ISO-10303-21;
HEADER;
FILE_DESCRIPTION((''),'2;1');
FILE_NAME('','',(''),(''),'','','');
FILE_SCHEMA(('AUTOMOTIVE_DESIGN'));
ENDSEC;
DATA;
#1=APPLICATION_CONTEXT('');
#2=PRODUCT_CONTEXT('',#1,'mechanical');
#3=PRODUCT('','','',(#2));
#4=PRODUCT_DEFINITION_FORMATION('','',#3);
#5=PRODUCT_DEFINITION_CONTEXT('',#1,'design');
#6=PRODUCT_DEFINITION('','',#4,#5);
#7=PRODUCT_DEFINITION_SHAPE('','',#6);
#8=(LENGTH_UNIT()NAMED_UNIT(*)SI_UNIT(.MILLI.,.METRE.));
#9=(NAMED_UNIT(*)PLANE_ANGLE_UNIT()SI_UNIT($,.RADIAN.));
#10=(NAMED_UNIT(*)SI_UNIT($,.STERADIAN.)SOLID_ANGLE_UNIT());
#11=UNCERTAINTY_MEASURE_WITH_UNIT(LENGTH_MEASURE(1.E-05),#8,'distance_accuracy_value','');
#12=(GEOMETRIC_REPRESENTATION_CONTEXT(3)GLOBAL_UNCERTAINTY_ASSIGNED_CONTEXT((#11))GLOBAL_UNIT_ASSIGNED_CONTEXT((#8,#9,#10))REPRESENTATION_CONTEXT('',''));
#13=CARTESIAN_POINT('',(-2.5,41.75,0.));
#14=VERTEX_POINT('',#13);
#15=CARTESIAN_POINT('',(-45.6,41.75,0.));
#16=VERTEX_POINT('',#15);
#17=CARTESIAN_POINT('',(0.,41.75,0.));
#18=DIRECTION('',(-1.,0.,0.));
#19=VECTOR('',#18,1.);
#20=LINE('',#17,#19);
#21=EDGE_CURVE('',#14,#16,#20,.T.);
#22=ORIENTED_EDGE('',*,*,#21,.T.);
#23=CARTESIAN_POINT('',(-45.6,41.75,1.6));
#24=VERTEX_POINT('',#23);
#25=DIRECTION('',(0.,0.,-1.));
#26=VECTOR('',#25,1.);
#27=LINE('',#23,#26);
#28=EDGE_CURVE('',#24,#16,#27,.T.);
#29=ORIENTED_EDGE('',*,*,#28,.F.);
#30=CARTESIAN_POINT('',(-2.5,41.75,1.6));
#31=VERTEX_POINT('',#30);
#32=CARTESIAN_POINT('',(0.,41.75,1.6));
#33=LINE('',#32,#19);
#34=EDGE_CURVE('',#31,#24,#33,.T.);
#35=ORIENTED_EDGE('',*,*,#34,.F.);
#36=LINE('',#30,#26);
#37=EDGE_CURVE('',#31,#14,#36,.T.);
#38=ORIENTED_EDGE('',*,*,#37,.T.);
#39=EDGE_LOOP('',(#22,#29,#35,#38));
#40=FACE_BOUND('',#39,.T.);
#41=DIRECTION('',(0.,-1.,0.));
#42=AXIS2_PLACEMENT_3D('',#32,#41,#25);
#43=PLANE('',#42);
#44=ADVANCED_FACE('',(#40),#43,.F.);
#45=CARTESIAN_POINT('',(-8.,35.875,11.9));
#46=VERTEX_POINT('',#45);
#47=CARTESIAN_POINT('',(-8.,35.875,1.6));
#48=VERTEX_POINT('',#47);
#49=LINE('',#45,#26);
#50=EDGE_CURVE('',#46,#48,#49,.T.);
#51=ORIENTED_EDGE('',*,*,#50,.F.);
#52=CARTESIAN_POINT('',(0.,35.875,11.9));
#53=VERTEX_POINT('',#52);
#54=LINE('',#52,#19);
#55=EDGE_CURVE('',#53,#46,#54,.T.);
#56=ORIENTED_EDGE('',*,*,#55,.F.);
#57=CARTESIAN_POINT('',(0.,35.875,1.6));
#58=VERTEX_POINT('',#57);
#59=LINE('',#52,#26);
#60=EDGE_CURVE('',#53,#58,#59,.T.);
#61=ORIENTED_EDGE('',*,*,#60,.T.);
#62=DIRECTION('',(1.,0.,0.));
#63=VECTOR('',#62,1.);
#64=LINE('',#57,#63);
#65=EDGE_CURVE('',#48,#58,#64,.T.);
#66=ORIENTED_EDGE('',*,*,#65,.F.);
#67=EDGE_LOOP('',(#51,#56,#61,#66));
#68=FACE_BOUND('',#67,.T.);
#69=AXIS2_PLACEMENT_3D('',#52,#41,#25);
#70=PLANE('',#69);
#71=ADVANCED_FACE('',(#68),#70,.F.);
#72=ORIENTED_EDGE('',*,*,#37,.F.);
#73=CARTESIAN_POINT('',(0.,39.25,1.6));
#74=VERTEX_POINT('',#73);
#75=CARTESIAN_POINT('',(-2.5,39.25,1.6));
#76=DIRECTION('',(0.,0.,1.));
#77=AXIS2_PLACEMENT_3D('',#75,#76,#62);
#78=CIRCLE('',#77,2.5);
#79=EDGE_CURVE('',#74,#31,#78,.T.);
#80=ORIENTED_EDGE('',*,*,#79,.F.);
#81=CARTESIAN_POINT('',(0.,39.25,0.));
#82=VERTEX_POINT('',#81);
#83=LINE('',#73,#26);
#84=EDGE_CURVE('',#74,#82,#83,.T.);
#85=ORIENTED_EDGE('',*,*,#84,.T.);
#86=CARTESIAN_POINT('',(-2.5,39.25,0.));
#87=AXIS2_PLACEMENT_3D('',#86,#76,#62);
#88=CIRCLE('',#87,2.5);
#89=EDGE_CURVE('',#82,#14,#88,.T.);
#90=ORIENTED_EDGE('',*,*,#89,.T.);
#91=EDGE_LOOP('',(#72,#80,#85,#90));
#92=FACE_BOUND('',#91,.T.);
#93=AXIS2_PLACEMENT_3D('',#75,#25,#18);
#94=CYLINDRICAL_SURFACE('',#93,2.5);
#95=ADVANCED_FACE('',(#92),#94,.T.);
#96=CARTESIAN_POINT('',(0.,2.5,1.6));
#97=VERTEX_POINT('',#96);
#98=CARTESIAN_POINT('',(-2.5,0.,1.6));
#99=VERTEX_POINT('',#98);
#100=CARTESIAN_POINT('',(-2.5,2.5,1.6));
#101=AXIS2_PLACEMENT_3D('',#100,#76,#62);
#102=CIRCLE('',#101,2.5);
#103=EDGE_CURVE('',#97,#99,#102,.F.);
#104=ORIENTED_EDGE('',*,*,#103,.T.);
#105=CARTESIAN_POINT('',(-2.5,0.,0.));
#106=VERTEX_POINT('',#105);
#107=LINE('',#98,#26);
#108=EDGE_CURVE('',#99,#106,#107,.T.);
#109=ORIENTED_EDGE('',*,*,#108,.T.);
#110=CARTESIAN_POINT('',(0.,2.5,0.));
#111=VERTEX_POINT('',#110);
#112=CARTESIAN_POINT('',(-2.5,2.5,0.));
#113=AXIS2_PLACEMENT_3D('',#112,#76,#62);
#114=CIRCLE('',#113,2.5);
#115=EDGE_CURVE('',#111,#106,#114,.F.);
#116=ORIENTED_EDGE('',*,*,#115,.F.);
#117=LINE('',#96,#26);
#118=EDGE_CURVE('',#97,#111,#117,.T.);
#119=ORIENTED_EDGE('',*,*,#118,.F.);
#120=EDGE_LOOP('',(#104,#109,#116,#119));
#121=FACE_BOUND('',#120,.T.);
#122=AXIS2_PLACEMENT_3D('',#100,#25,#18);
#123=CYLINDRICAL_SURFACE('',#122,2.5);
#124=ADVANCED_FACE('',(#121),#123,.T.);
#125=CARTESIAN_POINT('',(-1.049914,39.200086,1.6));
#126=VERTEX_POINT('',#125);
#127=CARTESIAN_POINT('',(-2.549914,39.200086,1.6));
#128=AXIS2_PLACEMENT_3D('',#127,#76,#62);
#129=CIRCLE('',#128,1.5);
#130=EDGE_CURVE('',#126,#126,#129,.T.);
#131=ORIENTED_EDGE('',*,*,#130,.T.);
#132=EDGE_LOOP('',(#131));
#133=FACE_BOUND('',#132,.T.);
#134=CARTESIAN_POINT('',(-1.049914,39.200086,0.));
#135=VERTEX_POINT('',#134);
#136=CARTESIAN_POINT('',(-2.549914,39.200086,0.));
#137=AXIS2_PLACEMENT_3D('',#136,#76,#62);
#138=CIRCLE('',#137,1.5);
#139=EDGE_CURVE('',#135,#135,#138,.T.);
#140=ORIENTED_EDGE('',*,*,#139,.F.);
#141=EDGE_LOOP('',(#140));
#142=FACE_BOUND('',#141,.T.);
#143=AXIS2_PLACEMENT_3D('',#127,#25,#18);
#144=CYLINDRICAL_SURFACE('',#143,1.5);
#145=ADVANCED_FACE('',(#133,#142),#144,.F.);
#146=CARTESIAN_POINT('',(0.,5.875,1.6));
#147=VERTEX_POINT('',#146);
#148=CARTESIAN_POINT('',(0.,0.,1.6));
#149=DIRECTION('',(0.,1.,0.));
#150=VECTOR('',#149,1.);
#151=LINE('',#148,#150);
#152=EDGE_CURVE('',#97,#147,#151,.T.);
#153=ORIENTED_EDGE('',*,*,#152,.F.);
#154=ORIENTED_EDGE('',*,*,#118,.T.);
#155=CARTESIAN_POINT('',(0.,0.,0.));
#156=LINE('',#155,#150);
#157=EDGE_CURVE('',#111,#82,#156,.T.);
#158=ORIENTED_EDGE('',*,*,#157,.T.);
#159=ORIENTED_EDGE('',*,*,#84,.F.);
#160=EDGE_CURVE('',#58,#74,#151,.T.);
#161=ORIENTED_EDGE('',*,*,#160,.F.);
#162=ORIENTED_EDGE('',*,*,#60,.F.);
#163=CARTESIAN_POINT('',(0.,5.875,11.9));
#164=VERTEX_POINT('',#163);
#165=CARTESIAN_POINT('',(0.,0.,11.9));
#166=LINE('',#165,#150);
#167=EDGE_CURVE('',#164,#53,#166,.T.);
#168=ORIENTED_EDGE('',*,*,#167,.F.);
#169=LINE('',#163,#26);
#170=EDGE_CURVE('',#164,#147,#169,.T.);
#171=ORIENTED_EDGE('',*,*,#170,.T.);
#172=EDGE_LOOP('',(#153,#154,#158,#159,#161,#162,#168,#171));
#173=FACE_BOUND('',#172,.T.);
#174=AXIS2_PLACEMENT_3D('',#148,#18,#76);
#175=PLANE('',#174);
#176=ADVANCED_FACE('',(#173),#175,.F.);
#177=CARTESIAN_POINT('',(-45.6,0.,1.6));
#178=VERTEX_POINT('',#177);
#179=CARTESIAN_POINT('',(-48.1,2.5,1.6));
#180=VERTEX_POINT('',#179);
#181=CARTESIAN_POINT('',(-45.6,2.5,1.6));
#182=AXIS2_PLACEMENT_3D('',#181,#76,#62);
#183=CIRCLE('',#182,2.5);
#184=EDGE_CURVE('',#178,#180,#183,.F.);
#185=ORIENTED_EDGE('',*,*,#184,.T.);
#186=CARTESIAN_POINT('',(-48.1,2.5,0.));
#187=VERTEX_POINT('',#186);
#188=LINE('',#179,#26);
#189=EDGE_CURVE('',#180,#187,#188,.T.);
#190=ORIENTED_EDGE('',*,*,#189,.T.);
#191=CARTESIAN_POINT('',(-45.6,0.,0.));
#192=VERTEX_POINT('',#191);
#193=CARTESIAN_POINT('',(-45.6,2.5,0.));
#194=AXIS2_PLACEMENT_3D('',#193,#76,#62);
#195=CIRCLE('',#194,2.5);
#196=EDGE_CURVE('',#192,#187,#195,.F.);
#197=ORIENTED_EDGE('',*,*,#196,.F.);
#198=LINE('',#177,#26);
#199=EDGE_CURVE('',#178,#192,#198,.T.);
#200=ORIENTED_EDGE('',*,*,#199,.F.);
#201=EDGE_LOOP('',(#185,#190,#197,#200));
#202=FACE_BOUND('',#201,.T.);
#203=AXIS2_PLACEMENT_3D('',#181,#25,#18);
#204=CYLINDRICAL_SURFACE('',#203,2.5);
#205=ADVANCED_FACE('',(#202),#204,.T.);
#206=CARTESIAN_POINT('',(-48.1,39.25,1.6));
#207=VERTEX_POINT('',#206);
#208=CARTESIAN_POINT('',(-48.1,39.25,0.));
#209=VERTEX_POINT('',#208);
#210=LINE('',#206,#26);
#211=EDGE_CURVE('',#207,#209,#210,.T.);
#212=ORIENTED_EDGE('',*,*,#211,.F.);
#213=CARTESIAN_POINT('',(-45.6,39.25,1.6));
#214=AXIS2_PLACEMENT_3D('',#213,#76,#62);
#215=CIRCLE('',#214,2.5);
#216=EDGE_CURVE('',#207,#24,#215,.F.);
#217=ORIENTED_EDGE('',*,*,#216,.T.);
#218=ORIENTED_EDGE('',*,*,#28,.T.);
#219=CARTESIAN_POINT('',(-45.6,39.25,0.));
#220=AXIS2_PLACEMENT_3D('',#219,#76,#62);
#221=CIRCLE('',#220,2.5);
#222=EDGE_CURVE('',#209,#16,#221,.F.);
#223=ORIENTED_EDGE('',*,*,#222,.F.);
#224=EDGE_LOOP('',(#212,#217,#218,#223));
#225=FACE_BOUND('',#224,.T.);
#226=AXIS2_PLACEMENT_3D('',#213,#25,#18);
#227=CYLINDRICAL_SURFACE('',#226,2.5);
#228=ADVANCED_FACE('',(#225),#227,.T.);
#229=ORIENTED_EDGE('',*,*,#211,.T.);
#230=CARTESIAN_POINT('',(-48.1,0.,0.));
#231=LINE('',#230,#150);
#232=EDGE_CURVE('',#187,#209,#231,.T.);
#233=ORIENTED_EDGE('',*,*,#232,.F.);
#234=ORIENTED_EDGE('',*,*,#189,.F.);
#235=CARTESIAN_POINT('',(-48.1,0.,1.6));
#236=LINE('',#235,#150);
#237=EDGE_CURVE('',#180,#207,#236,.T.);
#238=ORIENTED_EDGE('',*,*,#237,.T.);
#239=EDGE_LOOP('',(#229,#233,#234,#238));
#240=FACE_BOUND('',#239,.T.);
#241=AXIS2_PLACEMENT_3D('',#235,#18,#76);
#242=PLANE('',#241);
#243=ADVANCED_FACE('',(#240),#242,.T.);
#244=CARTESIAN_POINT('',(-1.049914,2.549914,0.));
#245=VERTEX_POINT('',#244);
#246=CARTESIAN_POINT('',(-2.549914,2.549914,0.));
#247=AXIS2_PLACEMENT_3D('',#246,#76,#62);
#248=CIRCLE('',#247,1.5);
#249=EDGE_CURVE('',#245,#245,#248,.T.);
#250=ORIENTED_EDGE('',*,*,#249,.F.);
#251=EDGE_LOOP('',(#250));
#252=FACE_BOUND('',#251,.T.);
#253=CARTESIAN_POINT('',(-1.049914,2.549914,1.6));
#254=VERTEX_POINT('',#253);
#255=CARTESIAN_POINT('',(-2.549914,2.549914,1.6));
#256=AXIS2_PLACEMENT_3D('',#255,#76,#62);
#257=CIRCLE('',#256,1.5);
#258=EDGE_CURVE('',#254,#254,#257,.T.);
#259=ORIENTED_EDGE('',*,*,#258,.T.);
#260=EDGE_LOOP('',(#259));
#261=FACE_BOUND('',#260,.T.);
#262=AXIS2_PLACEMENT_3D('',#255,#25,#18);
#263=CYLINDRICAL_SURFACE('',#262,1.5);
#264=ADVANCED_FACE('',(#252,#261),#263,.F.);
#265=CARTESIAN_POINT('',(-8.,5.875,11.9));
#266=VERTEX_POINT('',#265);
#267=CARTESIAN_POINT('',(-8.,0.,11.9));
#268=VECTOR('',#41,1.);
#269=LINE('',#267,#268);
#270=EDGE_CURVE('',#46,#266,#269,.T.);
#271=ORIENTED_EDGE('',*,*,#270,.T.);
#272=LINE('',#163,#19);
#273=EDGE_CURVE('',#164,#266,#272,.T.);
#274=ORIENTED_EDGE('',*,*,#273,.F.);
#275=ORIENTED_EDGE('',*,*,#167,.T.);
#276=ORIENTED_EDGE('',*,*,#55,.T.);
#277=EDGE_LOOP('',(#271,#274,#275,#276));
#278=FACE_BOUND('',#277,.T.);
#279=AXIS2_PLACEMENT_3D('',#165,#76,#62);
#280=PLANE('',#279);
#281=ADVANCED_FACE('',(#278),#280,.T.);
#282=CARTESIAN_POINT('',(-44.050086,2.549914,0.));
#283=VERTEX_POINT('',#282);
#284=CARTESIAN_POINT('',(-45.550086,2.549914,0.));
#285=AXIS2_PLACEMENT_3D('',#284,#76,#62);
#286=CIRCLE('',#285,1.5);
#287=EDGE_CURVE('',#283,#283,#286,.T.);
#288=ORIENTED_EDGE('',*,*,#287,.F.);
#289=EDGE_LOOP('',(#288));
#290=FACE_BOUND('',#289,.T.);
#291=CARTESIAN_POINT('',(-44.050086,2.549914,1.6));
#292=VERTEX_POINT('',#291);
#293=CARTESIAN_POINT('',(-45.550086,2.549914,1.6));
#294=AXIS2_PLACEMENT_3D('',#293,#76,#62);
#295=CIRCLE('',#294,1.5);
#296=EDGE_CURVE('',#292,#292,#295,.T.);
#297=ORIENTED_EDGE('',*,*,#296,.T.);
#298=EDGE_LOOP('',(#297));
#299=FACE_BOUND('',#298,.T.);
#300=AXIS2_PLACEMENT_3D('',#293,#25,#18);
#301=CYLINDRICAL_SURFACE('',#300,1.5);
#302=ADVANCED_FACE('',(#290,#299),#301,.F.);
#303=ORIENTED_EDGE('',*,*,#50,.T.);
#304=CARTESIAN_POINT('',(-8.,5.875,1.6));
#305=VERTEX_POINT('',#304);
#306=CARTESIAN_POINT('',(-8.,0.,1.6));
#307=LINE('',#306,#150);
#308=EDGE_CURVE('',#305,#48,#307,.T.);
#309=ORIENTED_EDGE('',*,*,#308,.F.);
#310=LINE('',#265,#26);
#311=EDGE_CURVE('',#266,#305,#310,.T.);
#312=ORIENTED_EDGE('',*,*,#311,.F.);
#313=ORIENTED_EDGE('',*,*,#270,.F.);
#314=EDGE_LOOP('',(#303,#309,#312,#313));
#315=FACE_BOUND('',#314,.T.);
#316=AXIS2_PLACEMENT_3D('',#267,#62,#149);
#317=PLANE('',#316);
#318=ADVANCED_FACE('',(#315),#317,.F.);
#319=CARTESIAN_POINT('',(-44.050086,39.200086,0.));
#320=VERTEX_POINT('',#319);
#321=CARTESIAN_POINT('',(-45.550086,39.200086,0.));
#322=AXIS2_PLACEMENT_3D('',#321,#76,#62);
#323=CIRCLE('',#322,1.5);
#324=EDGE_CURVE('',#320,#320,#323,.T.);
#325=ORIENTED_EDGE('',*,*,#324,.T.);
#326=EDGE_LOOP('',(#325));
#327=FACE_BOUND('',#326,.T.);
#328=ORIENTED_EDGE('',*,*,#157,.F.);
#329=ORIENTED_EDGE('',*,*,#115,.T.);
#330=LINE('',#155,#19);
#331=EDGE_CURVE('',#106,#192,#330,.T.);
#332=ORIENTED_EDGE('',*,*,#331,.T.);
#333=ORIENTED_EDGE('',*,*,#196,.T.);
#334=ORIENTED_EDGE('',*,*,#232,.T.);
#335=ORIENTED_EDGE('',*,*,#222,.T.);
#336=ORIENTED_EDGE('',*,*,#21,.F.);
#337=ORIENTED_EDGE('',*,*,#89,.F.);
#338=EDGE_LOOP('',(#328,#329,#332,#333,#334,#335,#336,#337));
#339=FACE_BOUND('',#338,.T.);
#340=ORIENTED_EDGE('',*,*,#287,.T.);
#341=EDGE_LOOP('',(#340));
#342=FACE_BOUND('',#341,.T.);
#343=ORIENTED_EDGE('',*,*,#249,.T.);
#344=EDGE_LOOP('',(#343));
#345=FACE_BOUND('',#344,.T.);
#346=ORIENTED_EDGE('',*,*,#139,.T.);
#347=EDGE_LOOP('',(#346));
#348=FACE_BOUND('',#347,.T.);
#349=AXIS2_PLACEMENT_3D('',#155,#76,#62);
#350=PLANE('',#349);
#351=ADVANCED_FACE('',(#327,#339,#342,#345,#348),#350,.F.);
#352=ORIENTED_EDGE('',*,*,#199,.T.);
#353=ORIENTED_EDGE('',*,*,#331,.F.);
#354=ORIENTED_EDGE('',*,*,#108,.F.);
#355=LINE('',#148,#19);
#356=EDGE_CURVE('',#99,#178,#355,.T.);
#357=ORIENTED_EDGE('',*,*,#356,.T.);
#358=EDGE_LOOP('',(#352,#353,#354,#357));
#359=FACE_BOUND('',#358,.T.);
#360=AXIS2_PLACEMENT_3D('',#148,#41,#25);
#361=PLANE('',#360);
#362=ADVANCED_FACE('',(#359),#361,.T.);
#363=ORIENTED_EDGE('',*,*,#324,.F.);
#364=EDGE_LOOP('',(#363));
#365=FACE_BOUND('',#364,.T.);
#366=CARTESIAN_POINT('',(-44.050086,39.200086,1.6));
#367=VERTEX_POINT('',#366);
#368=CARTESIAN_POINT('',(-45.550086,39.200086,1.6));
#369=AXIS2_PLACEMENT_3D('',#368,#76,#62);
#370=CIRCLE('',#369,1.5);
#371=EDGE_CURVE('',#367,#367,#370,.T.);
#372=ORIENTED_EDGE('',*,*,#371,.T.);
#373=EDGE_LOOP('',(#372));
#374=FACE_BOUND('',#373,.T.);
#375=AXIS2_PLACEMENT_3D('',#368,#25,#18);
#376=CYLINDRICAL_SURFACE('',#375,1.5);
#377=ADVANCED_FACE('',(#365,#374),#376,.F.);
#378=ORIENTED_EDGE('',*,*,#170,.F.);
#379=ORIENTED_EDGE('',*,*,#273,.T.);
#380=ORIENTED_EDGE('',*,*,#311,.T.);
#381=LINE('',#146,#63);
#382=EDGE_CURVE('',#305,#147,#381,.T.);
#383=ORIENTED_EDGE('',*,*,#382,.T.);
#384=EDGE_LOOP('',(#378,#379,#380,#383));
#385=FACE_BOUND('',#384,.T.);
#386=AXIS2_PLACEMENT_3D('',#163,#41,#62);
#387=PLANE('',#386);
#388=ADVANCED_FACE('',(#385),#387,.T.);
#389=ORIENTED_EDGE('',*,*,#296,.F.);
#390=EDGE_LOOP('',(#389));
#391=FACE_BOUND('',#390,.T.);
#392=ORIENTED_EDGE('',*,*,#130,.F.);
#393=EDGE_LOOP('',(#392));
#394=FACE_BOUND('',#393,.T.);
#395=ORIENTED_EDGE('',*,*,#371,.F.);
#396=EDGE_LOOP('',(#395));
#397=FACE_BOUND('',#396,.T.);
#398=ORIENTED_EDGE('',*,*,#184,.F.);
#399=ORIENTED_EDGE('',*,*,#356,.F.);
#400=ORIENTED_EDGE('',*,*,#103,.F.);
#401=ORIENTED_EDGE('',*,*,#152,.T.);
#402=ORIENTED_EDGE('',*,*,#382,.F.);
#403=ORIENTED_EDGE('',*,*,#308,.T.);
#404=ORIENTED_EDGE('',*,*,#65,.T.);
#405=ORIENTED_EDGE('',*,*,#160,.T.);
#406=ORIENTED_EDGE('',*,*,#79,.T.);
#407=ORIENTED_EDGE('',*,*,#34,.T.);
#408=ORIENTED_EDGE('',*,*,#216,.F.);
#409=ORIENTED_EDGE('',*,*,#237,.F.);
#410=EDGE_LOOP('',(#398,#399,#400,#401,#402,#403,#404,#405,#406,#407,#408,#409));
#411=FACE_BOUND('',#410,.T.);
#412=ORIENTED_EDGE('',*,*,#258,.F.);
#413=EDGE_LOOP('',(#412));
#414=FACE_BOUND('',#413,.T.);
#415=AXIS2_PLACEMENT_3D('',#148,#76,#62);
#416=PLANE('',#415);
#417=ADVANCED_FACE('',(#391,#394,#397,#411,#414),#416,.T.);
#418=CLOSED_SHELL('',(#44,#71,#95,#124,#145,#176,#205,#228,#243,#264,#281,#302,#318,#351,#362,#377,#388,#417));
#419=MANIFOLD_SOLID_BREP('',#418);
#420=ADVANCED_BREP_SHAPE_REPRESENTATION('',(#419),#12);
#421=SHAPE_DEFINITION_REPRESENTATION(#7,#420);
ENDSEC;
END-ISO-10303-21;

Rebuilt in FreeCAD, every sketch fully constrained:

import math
import FreeCAD as App
import Part
import Sketcher
from FreeCAD import Vector

doc = App.newDocument("Part")
body = doc.addObject("PartDesign::Body", "Body")

# Sketch on XY plane
sketch1 = doc.addObject("Sketcher::SketchObject", "Sketch")
body.addObject(sketch1)
sketch1.AttachmentSupport = (doc.XY_Plane, [""])
sketch1.MapMode = "FlatFace"
sketch1.addGeometry([
    Part.ArcOfCircle(Part.Circle(Vector(-2.5, 2.5, 0), Vector(0, 0, 1), 2.5), math.radians(-90), math.radians(0)),  # 0
    Part.LineSegment(Vector(0, 2.5, 0), Vector(0, 39.2, 0)),  # 1
    Part.ArcOfCircle(Part.Circle(Vector(-2.5, 39.2, 0), Vector(0, 0, 1), 2.5), math.radians(0), math.radians(90)),  # 2
    Part.LineSegment(Vector(-2.5, 41.8, 0), Vector(-45.6, 41.8, 0)),  # 3
    Part.ArcOfCircle(Part.Circle(Vector(-45.6, 39.2, 0), Vector(0, 0, 1), 2.5), math.radians(90), math.radians(180)),  # 4
    Part.LineSegment(Vector(-48.1, 39.2, 0), Vector(-48.1, 2.5, 0)),  # 5
    Part.ArcOfCircle(Part.Circle(Vector(-45.6, 2.5, 0), Vector(0, 0, 1), 2.5), math.radians(180), math.radians(270)),  # 6
    Part.LineSegment(Vector(-45.6, 0, 0), Vector(-2.5, 0, 0)),  # 7
    Part.Circle(Vector(-2.5, 2.5, 0), Vector(0, 0, 1), 1.5),  # 8
    Part.Circle(Vector(-2.5, 39.2, 0), Vector(0, 0, 1), 1.5),  # 9
    Part.Circle(Vector(-45.6, 2.5, 0), Vector(0, 0, 1), 1.5),  # 10
    Part.Circle(Vector(-45.6, 39.2, 0), Vector(0, 0, 1), 1.5),  # 11
], False)
sketch1.addConstraint([
    Sketcher.Constraint("Tangent", 0, 2, 1, 1),
    Sketcher.Constraint("Tangent", 1, 2, 2, 1),
    Sketcher.Constraint("Tangent", 2, 2, 3, 1),
    Sketcher.Constraint("Tangent", 3, 2, 4, 1),
    Sketcher.Constraint("Tangent", 4, 2, 5, 1),
    Sketcher.Constraint("Tangent", 5, 2, 6, 1),
    Sketcher.Constraint("Tangent", 6, 2, 7, 1),
    Sketcher.Constraint("Tangent", 7, 2, 0, 1),
    Sketcher.Constraint("Vertical", 1),
    Sketcher.Constraint("Horizontal", 3),
    Sketcher.Constraint("Vertical", 5),
    Sketcher.Constraint("Horizontal", 7),
    Sketcher.Constraint("Equal", 0, 2),
    Sketcher.Constraint("Equal", 2, 4),
    Sketcher.Constraint("Equal", 4, 6),
    Sketcher.Constraint("Equal", 8, 9),
    Sketcher.Constraint("Equal", 9, 10),
    Sketcher.Constraint("Equal", 10, 11),
    Sketcher.Constraint("PointOnObject", 0, 2, -2),
    Sketcher.Constraint("PointOnObject", 6, 2, -1),
    Sketcher.Constraint("Horizontal", 8, 3, 10, 3),
    Sketcher.Constraint("Horizontal", 9, 3, 11, 3),
    Sketcher.Constraint("Vertical", 8, 3, 9, 3),
    Sketcher.Constraint("Vertical", 10, 3, 11, 3),
    Sketcher.Constraint("Diameter", 8, 3.0),
    Sketcher.Constraint("Radius", 0, 2.5),
    Sketcher.Constraint("DistanceX", 3, 2, 3, 1, 43.1),
    Sketcher.Constraint("DistanceY", 1, 1, 1, 2, 36.75),
    Sketcher.Constraint("DistanceX", 8, 3, -1, 1, 2.549914),
    Sketcher.Constraint("DistanceY", -1, 1, 8, 3, 2.549914),
    Sketcher.Constraint("DistanceY", -1, 1, 9, 3, 39.200086),
    Sketcher.Constraint("DistanceX", 10, 3, -1, 1, 45.550086),
])
pad1 = doc.addObject("PartDesign::Pad", "Pad")
body.addObject(pad1)
pad1.Profile = sketch1
pad1.Length = 1.6

# Sketch on XY plane
sketch2 = doc.addObject("Sketcher::SketchObject", "Sketch001")
body.addObject(sketch2)
sketch2.AttachmentSupport = (doc.XY_Plane, [""])
sketch2.MapMode = "FlatFace"
sketch2.addGeometry([
    Part.LineSegment(Vector(-8, 6, 0), Vector(0, 6, 0)),
    Part.LineSegment(Vector(0, 6, 0), Vector(0, 36, 0)),
    Part.LineSegment(Vector(0, 36, 0), Vector(-8, 36, 0)),
    Part.LineSegment(Vector(-8, 36, 0), Vector(-8, 6, 0)),
], False)
sketch2.addConstraint([
    Sketcher.Constraint("Coincident", 0, 2, 1, 1),
    Sketcher.Constraint("Coincident", 1, 2, 2, 1),
    Sketcher.Constraint("Coincident", 2, 2, 3, 1),
    Sketcher.Constraint("Coincident", 3, 2, 0, 1),
    Sketcher.Constraint("Horizontal", 0),
    Sketcher.Constraint("Vertical", 1),
    Sketcher.Constraint("Horizontal", 2),
    Sketcher.Constraint("Vertical", 3),
    Sketcher.Constraint("PointOnObject", 0, 2, -2),
    Sketcher.Constraint("DistanceX", 0, 1, 0, 2, 8.0),
    Sketcher.Constraint("DistanceY", 1, 1, 1, 2, 30.0),
    Sketcher.Constraint("DistanceY", -1, 1, 0, 2, 5.875),
])
pad2 = doc.addObject("PartDesign::Pad", "Pad001")
body.addObject(pad2)
pad2.Profile = sketch2
pad2.Length = 11.9

doc.recompute()
